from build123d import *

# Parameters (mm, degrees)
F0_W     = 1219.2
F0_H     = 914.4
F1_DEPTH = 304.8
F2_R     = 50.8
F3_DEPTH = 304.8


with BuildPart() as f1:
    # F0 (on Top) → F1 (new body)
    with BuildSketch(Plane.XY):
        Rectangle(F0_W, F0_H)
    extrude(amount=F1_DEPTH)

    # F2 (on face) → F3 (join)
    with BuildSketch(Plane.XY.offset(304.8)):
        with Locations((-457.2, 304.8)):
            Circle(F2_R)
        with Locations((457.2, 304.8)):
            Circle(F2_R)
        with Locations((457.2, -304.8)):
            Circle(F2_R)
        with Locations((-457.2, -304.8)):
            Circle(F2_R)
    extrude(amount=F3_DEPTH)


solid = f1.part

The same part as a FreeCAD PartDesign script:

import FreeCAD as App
import Part
import Sketcher

V = App.Vector
Q = App.Units.Quantity

doc = App.newDocument("Part")
body = doc.addObject("PartDesign::Body", "Body")

# Sketch on XY plane
sketch1 = body.newObject("Sketcher::SketchObject", "Sketch")
sketch1.AttachmentSupport = (doc.getObject("XY_Plane"), [""])
sketch1.MapMode = "FlatFace"
sketch1.addGeometry(Part.LineSegment(V(-610, 457, 0), V(-610, -457, 0)), False)
sketch1.addGeometry(Part.LineSegment(V(-610, -457, 0), V(610, -457, 0)), False)
sketch1.addGeometry(Part.LineSegment(V(610, -457, 0), V(610, 457, 0)), False)
sketch1.addGeometry(Part.LineSegment(V(610, 457, 0), V(-610, 457, 0)), False)
sketch1.addConstraint(Sketcher.Constraint("Coincident", 0, 2, 1, 1))
sketch1.addConstraint(Sketcher.Constraint("Coincident", 1, 2, 2, 1))
sketch1.addConstraint(Sketcher.Constraint("Coincident", 2, 2, 3, 1))
sketch1.addConstraint(Sketcher.Constraint("Coincident", 3, 2, 0, 1))
sketch1.addConstraint(Sketcher.Constraint("Vertical", 0))
sketch1.addConstraint(Sketcher.Constraint("Horizontal", 1))
sketch1.addConstraint(Sketcher.Constraint("Vertical", 2))
sketch1.addConstraint(Sketcher.Constraint("Horizontal", 3))
sketch1.addConstraint(Sketcher.Constraint("Symmetric", 0, 2, 2, 2, -1, 1))
sketch1.addConstraint(Sketcher.Constraint("DistanceX", 1, 1, 1, 2, Q("48 in")))
sketch1.addConstraint(Sketcher.Constraint("DistanceY", 0, 2, 0, 1, Q("36 in")))
pad1 = body.newObject("PartDesign::Pad", "Pad")
pad1.Profile = sketch1
pad1.Length = Q("12 in")

# Sketch on XY plane
sketch2 = body.newObject("Sketcher::SketchObject", "Sketch001")
sketch2.AttachmentSupport = (doc.getObject("XY_Plane"), [""])
sketch2.MapMode = "FlatFace"
sketch2.AttachmentOffset = App.Placement(V(0, 0, 12 * 25.4), App.Rotation())
sketch2.addGeometry(Part.Circle(V(-457, 305, 0), V(0, 0, 1), 51), False)
sketch2.addGeometry(Part.Circle(V(457, 305, 0), V(0, 0, 1), 51), False)
sketch2.addGeometry(Part.Circle(V(457, -305, 0), V(0, 0, 1), 51), False)
sketch2.addGeometry(Part.Circle(V(-457, -305, 0), V(0, 0, 1), 51), False)
sketch2.addConstraint(Sketcher.Constraint("Equal", 0, 1))
sketch2.addConstraint(Sketcher.Constraint("Equal", 1, 2))
sketch2.addConstraint(Sketcher.Constraint("Equal", 2, 3))
sketch2.addConstraint(Sketcher.Constraint("Symmetric", 0, 3, 2, 3, -1, 1))
sketch2.addConstraint(Sketcher.Constraint("Symmetric", 1, 3, 3, 3, -1, 1))
sketch2.addConstraint(Sketcher.Constraint("Symmetric", 0, 3, 1, 3, -2))
sketch2.addConstraint(Sketcher.Constraint("Diameter", 0, Q("4 in")))
sketch2.addConstraint(Sketcher.Constraint("DistanceX", 0, 3, -1, 1, Q("18 in")))
sketch2.addConstraint(Sketcher.Constraint("DistanceY", -1, 1, 0, 3, Q("12 in")))
pad2 = body.newObject("PartDesign::Pad", "Pad001")
pad2.Profile = sketch2
pad2.Length = Q("12 in")

doc.recompute()
